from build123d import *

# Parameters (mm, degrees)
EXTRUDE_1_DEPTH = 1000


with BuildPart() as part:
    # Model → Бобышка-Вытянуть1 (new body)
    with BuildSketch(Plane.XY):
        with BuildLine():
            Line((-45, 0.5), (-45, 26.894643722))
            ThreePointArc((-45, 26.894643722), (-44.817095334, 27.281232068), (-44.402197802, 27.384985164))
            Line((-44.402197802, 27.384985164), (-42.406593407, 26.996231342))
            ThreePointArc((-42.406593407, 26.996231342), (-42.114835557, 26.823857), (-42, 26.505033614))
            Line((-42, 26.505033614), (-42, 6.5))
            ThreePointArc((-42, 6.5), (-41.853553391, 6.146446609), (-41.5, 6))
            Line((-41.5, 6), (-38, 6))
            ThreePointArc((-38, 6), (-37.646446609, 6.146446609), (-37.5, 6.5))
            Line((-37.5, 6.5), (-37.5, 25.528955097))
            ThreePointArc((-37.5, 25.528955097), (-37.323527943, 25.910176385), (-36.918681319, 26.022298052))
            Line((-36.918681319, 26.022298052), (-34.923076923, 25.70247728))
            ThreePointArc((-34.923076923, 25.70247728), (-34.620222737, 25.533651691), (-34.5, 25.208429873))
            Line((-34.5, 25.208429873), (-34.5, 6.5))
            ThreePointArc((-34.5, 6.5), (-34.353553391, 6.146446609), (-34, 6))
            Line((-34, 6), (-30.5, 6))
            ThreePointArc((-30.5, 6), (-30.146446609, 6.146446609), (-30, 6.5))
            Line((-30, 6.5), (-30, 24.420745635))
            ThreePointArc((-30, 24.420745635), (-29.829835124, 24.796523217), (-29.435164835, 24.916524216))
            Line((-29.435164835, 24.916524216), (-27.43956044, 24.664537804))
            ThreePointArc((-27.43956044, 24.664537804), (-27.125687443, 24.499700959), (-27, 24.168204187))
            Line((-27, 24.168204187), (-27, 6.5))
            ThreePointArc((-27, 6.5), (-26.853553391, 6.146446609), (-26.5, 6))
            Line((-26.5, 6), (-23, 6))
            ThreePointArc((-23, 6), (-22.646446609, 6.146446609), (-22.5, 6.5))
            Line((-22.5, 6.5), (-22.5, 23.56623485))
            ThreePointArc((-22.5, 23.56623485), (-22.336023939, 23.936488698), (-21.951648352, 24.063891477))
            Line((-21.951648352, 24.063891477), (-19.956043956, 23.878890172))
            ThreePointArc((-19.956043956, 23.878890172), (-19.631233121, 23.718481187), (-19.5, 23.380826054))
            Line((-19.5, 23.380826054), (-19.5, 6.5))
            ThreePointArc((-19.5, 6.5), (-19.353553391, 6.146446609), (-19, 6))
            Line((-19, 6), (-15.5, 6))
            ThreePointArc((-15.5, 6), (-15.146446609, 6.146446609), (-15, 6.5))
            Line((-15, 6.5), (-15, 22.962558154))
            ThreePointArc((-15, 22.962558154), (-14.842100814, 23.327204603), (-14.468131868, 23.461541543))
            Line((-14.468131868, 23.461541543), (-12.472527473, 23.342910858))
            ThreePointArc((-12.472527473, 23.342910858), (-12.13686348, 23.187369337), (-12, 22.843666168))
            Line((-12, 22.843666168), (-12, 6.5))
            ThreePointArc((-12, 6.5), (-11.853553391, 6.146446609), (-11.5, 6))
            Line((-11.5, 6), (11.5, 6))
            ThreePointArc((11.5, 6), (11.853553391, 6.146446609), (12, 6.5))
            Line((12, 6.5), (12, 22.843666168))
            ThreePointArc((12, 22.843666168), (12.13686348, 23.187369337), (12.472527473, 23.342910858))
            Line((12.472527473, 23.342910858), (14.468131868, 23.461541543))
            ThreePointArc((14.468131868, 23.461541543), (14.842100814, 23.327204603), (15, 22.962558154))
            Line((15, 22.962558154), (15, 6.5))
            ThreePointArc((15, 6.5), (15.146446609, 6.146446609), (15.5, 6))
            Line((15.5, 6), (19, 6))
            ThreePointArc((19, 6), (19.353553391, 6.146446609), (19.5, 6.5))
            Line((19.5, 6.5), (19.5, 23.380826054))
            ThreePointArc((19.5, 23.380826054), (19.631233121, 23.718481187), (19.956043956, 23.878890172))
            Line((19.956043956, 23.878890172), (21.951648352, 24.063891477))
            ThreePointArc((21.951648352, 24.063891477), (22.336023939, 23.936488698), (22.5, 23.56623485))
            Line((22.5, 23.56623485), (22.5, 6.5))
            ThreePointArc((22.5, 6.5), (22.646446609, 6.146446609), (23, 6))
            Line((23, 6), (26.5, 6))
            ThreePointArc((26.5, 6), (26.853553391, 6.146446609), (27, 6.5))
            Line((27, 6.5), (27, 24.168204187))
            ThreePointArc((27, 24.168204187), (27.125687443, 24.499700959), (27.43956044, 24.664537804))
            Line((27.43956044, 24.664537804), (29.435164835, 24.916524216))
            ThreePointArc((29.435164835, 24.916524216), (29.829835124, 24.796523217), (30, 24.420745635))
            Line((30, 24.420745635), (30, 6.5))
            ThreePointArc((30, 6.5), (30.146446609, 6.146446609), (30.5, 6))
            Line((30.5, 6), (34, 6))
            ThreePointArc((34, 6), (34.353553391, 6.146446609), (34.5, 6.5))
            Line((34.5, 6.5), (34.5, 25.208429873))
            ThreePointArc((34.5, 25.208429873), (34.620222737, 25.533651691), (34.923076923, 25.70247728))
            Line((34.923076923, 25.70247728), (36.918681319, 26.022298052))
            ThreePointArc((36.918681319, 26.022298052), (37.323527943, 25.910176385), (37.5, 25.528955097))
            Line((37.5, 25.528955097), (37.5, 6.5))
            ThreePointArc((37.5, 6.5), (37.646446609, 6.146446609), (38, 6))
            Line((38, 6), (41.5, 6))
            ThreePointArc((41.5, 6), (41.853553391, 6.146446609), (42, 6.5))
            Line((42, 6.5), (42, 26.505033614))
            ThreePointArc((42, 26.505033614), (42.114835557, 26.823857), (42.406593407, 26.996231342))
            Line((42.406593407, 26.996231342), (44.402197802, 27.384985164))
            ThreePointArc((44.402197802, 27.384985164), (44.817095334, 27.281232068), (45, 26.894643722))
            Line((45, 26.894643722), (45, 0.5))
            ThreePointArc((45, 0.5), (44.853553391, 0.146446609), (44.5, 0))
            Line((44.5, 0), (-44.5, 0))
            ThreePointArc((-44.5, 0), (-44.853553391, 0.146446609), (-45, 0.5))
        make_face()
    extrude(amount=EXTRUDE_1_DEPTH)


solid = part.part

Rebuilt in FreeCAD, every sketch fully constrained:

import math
import FreeCAD as App
import Part
import Sketcher

V = App.Vector
Q = App.Units.Quantity

doc = App.newDocument("Part")
body = doc.addObject("PartDesign::Body", "Body")

# Sketch on XY plane
sketch1 = doc.addObject("Sketcher::SketchObject", "Sketch")
body.addObject(sketch1)
sketch1.AttachmentSupport = (doc.XY_Plane, [""])
sketch1.MapMode = "FlatFace"
sketch1.addGeometry([
    Part.LineSegment(V(-45, 26.89, 0), V(-45, 0.5, 0)),  # 0
    Part.ArcOfCircle(Part.Circle(V(-44.5, 0.5, 0), V(0, 0, 1), 0.5), math.radians(180), math.radians(270)),  # 1
    Part.LineSegment(V(-44.5, 0, 0), V(44.5, 0, 0)),  # 2
    Part.ArcOfCircle(Part.Circle(V(44.5, 0.5, 0), V(0, 0, 1), 0.5), math.radians(-90), math.radians(0)),  # 3
    Part.LineSegment(V(45, 0.5, 0), V(45, 26.89, 0)),  # 4
    Part.ArcOfCircle(Part.Circle(V(44.5, 26.89, 0), V(0, 0, 1), 0.5), math.radians(0), math.radians(101)),  # 5
    Part.LineSegment(V(44.4, 27.38, 0), V(42.41, 27, 0)),  # 6
    Part.ArcOfCircle(Part.Circle(V(42.5, 26.51, 0), V(0, 0, 1), 0.5), math.radians(101), math.radians(180)),  # 7
    Part.LineSegment(V(42, 26.51, 0), V(42, 6.5, 0)),  # 8
    Part.ArcOfCircle(Part.Circle(V(41.5, 6.5, 0), V(0, 0, 1), 0.5), math.radians(-90), math.radians(0)),  # 9
    Part.LineSegment(V(41.5, 6, 0), V(38, 6, 0)),  # 10
    Part.ArcOfCircle(Part.Circle(V(38, 6.5, 0), V(0, 0, 1), 0.5), math.radians(180), math.radians(270)),  # 11
    Part.LineSegment(V(37.5, 6.5, 0), V(37.5, 25.53, 0)),  # 12
    Part.ArcOfCircle(Part.Circle(V(37, 25.53, 0), V(0, 0, 1), 0.5), math.radians(0), math.radians(99)),  # 13
    Part.LineSegment(V(36.92, 26.02, 0), V(34.92, 25.7, 0)),  # 14
    Part.ArcOfCircle(Part.Circle(V(35, 25.21, 0), V(0, 0, 1), 0.5), math.radians(99), math.radians(180)),  # 15
    Part.LineSegment(V(34.5, 25.21, 0), V(34.5, 6.5, 0)),  # 16
    Part.ArcOfCircle(Part.Circle(V(34, 6.5, 0), V(0, 0, 1), 0.5), math.radians(-90), math.radians(0)),  # 17
    Part.LineSegment(V(34, 6, 0), V(30.5, 6, 0)),  # 18
    Part.ArcOfCircle(Part.Circle(V(30.5, 6.5, 0), V(0, 0, 1), 0.5), math.radians(180), math.radians(270)),  # 19
    Part.LineSegment(V(30, 6.5, 0), V(30, 24.42, 0)),  # 20
    Part.ArcOfCircle(Part.Circle(V(29.5, 24.42, 0), V(0, 0, 1), 0.5), math.radians(0), math.radians(97)),  # 21
    Part.LineSegment(V(29.44, 24.92, 0), V(27.44, 24.66, 0)),  # 22
    Part.ArcOfCircle(Part.Circle(V(27.5, 24.17, 0), V(0, 0, 1), 0.5), math.radians(97), math.radians(180)),  # 23
    Part.LineSegment(V(27, 24.17, 0), V(27, 6.5, 0)),  # 24
    Part.ArcOfCircle(Part.Circle(V(26.5, 6.5, 0), V(0, 0, 1), 0.5), math.radians(-90), math.radians(0)),  # 25
    Part.LineSegment(V(26.5, 6, 0), V(23, 6, 0)),  # 26
    Part.ArcOfCircle(Part.Circle(V(23, 6.5, 0), V(0, 0, 1), 0.5), math.radians(180), math.radians(270)),  # 27
    Part.LineSegment(V(22.5, 6.5, 0), V(22.5, 23.57, 0)),  # 28
    Part.ArcOfCircle(Part.Circle(V(22, 23.57, 0), V(0, 0, 1), 0.5), math.radians(0), math.radians(96)),  # 29
    Part.LineSegment(V(21.95, 24.06, 0), V(19.96, 23.88, 0)),  # 30
    Part.ArcOfCircle(Part.Circle(V(20, 23.38, 0), V(0, 0, 1), 0.5), math.radians(95), math.radians(180)),  # 31
    Part.LineSegment(V(19.5, 23.38, 0), V(19.5, 6.5, 0)),  # 32
    Part.ArcOfCircle(Part.Circle(V(19, 6.5, 0), V(0, 0, 1), 0.5), math.radians(-90), math.radians(0)),  # 33
    Part.LineSegment(V(19, 6, 0), V(15.5, 6, 0)),  # 34
    Part.ArcOfCircle(Part.Circle(V(15.5, 6.5, 0), V(0, 0, 1), 0.5), math.radians(180), math.radians(270)),  # 35
    Part.LineSegment(V(15, 6.5, 0), V(15, 22.96, 0)),  # 36
    Part.ArcOfCircle(Part.Circle(V(14.5, 22.96, 0), V(0, 0, 1), 0.5), math.radians(0), math.radians(94)),  # 37
    Part.LineSegment(V(14.47, 23.46, 0), V(12.47, 23.34, 0)),  # 38
    Part.ArcOfCircle(Part.Circle(V(12.5, 22.84, 0), V(0, 0, 1), 0.5), math.radians(93), math.radians(180)),  # 39
    Part.LineSegment(V(12, 22.84, 0), V(12, 6.5, 0)),  # 40
    Part.ArcOfCircle(Part.Circle(V(11.5, 6.5, 0), V(0, 0, 1), 0.5), math.radians(-90), math.radians(0)),  # 41
    Part.LineSegment(V(11.5, 6, 0), V(-11.5, 6, 0)),  # 42
    Part.ArcOfCircle(Part.Circle(V(-11.5, 6.5, 0), V(0, 0, 1), 0.5), math.radians(180), math.radians(270)),  # 43
    Part.LineSegment(V(-12, 6.5, 0), V(-12, 22.84, 0)),  # 44
    Part.ArcOfCircle(Part.Circle(V(-12.5, 22.84, 0), V(0, 0, 1), 0.5), math.radians(0), math.radians(87)),  # 45
    Part.LineSegment(V(-12.47, 23.34, 0), V(-14.47, 23.46, 0)),  # 46
    Part.ArcOfCircle(Part.Circle(V(-14.5, 22.96, 0), V(0, 0, 1), 0.5), math.radians(86), math.radians(180)),  # 47
    Part.LineSegment(V(-15, 22.96, 0), V(-15, 6.5, 0)),  # 48
    Part.ArcOfCircle(Part.Circle(V(-15.5, 6.5, 0), V(0, 0, 1), 0.5), math.radians(-90), math.radians(0)),  # 49
    Part.LineSegment(V(-15.5, 6, 0), V(-19, 6, 0)),  # 50
    Part.ArcOfCircle(Part.Circle(V(-19, 6.5, 0), V(0, 0, 1), 0.5), math.radians(180), math.radians(270)),  # 51
    Part.LineSegment(V(-19.5, 6.5, 0), V(-19.5, 23.38, 0)),  # 52
    Part.ArcOfCircle(Part.Circle(V(-20, 23.38, 0), V(0, 0, 1), 0.5), math.radians(0), math.radians(85)),  # 53
    Part.LineSegment(V(-19.96, 23.88, 0), V(-21.95, 24.06, 0)),  # 54
    Part.ArcOfCircle(Part.Circle(V(-22, 23.57, 0), V(0, 0, 1), 0.5), math.radians(84), math.radians(180)),  # 55
    Part.LineSegment(V(-22.5, 23.57, 0), V(-22.5, 6.5, 0)),  # 56
    Part.ArcOfCircle(Part.Circle(V(-23, 6.5, 0), V(0, 0, 1), 0.5), math.radians(-90), math.radians(0)),  # 57
    Part.LineSegment(V(-23, 6, 0), V(-26.5, 6, 0)),  # 58
    Part.ArcOfCircle(Part.Circle(V(-26.5, 6.5, 0), V(0, 0, 1), 0.5), math.radians(180), math.radians(270)),  # 59
    Part.LineSegment(V(-27, 6.5, 0), V(-27, 24.17, 0)),  # 60
    Part.ArcOfCircle(Part.Circle(V(-27.5, 24.17, 0), V(0, 0, 1), 0.5), math.radians(0), math.radians(83)),  # 61
    Part.LineSegment(V(-27.44, 24.66, 0), V(-29.44, 24.92, 0)),  # 62
    Part.ArcOfCircle(Part.Circle(V(-29.5, 24.42, 0), V(0, 0, 1), 0.5), math.radians(83), math.radians(180)),  # 63
    Part.LineSegment(V(-30, 24.42, 0), V(-30, 6.5, 0)),  # 64
    Part.ArcOfCircle(Part.Circle(V(-30.5, 6.5, 0), V(0, 0, 1), 0.5), math.radians(-90), math.radians(0)),  # 65
    Part.LineSegment(V(-30.5, 6, 0), V(-34, 6, 0)),  # 66
    Part.ArcOfCircle(Part.Circle(V(-34, 6.5, 0), V(0, 0, 1), 0.5), math.radians(180), math.radians(270)),  # 67
    Part.LineSegment(V(-34.5, 6.5, 0), V(-34.5, 25.21, 0)),  # 68
    Part.ArcOfCircle(Part.Circle(V(-35, 25.21, 0), V(0, 0, 1), 0.5), math.radians(0), math.radians(81)),  # 69
    Part.LineSegment(V(-34.92, 25.7, 0), V(-36.92, 26.02, 0)),  # 70
    Part.ArcOfCircle(Part.Circle(V(-37, 25.53, 0), V(0, 0, 1), 0.5), math.radians(81), math.radians(180)),  # 71
    Part.LineSegment(V(-37.5, 25.53, 0), V(-37.5, 6.5, 0)),  # 72
    Part.ArcOfCircle(Part.Circle(V(-38, 6.5, 0), V(0, 0, 1), 0.5), math.radians(-90), math.radians(0)),  # 73
    Part.LineSegment(V(-38, 6, 0), V(-41.5, 6, 0)),  # 74
    Part.ArcOfCircle(Part.Circle(V(-41.5, 6.5, 0), V(0, 0, 1), 0.5), math.radians(180), math.radians(270)),  # 75
    Part.LineSegment(V(-42, 6.5, 0), V(-42, 26.51, 0)),  # 76
    Part.ArcOfCircle(Part.Circle(V(-42.5, 26.51, 0), V(0, 0, 1), 0.5), math.radians(0), math.radians(79)),  # 77
    Part.LineSegment(V(-42.41, 27, 0), V(-44.4, 27.38, 0)),  # 78
    Part.ArcOfCircle(Part.Circle(V(-44.5, 26.89, 0), V(0, 0, 1), 0.5), math.radians(79), math.radians(180)),  # 79
], False)
sketch1.addConstraint([
    Sketcher.Constraint("Tangent", 0, 2, 1, 1),
    Sketcher.Constraint("Tangent", 1, 2, 2, 1),
    Sketcher.Constraint("Tangent", 2, 2, 3, 1),
    Sketcher.Constraint("Tangent", 3, 2, 4, 1),
    Sketcher.Constraint("Tangent", 4, 2, 5, 1),
    Sketcher.Constraint("Coincident", 5, 2, 6, 1),
    Sketcher.Constraint("Coincident", 6, 2, 7, 1),
    Sketcher.Constraint("Tangent", 7, 2, 8, 1),
    Sketcher.Constraint("Tangent", 8, 2, 9, 2),
    Sketcher.Constraint("Tangent", 9, 1, 10, 1),
    Sketcher.Constraint("Tangent", 10, 2, 11, 2),
    Sketcher.Constraint("Tangent", 11, 1, 12, 1),
    Sketcher.Constraint("Tangent", 12, 2, 13, 1),
    Sketcher.Constraint("Coincident", 13, 2, 14, 1),
    Sketcher.Constraint("Coincident", 14, 2, 15, 1),
    Sketcher.Constraint("Tangent", 15, 2, 16, 1),
    Sketcher.Constraint("Tangent", 16, 2, 17, 2),
    Sketcher.Constraint("Tangent", 17, 1, 18, 1),
    Sketcher.Constraint("Tangent", 18, 2, 19, 2),
    Sketcher.Constraint("Tangent", 19, 1, 20, 1),
    Sketcher.Constraint("Tangent", 20, 2, 21, 1),
    Sketcher.Constraint("Coincident", 21, 2, 22, 1),
    Sketcher.Constraint("Coincident", 22, 2, 23, 1),
    Sketcher.Constraint("Tangent", 23, 2, 24, 1),
    Sketcher.Constraint("Tangent", 24, 2, 25, 2),
    Sketcher.Constraint("Tangent", 25, 1, 26, 1),
    Sketcher.Constraint("Tangent", 26, 2, 27, 2),
    Sketcher.Constraint("Tangent", 27, 1, 28, 1),
    Sketcher.Constraint("Tangent", 28, 2, 29, 1),
    Sketcher.Constraint("Coincident", 29, 2, 30, 1),
    Sketcher.Constraint("Coincident", 30, 2, 31, 1),
    Sketcher.Constraint("Tangent", 31, 2, 32, 1),
    Sketcher.Constraint("Tangent", 32, 2, 33, 2),
    Sketcher.Constraint("Tangent", 33, 1, 34, 1),
    Sketcher.Constraint("Tangent", 34, 2, 35, 2),
    Sketcher.Constraint("Tangent", 35, 1, 36, 1),
    Sketcher.Constraint("Tangent", 36, 2, 37, 1),
    Sketcher.Constraint("Coincident", 37, 2, 38, 1),
    Sketcher.Constraint("Coincident", 38, 2, 39, 1),
    Sketcher.Constraint("Tangent", 39, 2, 40, 1),
    Sketcher.Constraint("Tangent", 40, 2, 41, 2),
    Sketcher.Constraint("Tangent", 41, 1, 42, 1),
    Sketcher.Constraint("Tangent", 42, 2, 43, 2),
    Sketcher.Constraint("Tangent", 43, 1, 44, 1),
    Sketcher.Constraint("Tangent", 44, 2, 45, 1),
    Sketcher.Constraint("Coincident", 45, 2, 46, 1),
    Sketcher.Constraint("Coincident", 46, 2, 47, 1),
    Sketcher.Constraint("Tangent", 47, 2, 48, 1),
    Sketcher.Constraint("Tangent", 48, 2, 49, 2),
    Sketcher.Constraint("Tangent", 49, 1, 50, 1),
    Sketcher.Constraint("Tangent", 50, 2, 51, 2),
    Sketcher.Constraint("Tangent", 51, 1, 52, 1),
    Sketcher.Constraint("Tangent", 52, 2, 53, 1),
    Sketcher.Constraint("Coincident", 53, 2, 54, 1),
    Sketcher.Constraint("Coincident", 54, 2, 55, 1),
    Sketcher.Constraint("Tangent", 55, 2, 56, 1),
    Sketcher.Constraint("Tangent", 56, 2, 57, 2),
    Sketcher.Constraint("Tangent", 57, 1, 58, 1),
    Sketcher.Constraint("Tangent", 58, 2, 59, 2),
    Sketcher.Constraint("Tangent", 59, 1, 60, 1),
    Sketcher.Constraint("Tangent", 60, 2, 61, 1),
    Sketcher.Constraint("Coincident", 61, 2, 62, 1),
    Sketcher.Constraint("Coincident", 62, 2, 63, 1),
    Sketcher.Constraint("Tangent", 63, 2, 64, 1),
    Sketcher.Constraint("Tangent", 64, 2, 65, 2),
    Sketcher.Constraint("Tangent", 65, 1, 66, 1),
    Sketcher.Constraint("Tangent", 66, 2, 67, 2),
    Sketcher.Constraint("Tangent", 67, 1, 68, 1),
    Sketcher.Constraint("Tangent", 68, 2, 69, 1),
    Sketcher.Constraint("Coincident", 69, 2, 70, 1),
    Sketcher.Constraint("Coincident", 70, 2, 71, 1),
    Sketcher.Constraint("Tangent", 71, 2, 72, 1),
    Sketcher.Constraint("Tangent", 72, 2, 73, 2),
    Sketcher.Constraint("Tangent", 73, 1, 74, 1),
    Sketcher.Constraint("Tangent", 74, 2, 75, 2),
    Sketcher.Constraint("Tangent", 75, 1, 76, 1),
    Sketcher.Constraint("Tangent", 76, 2, 77, 1),
    Sketcher.Constraint("Coincident", 77, 2, 78, 1),
    Sketcher.Constraint("Coincident", 78, 2, 79, 1),
    Sketcher.Constraint("Tangent", 79, 2, 0, 1),
    Sketcher.Constraint("Vertical", 0),
    Sketcher.Constraint("Horizontal", 2),
    Sketcher.Constraint("Vertical", 4),
    Sketcher.Constraint("Vertical", 8),
    Sketcher.Constraint("Horizontal", 10),
    Sketcher.Constraint("Vertical", 12),
    Sketcher.Constraint("Vertical", 16),
    Sketcher.Constraint("Horizontal", 18),
    Sketcher.Constraint("Vertical", 20),
    Sketcher.Constraint("Vertical", 24),
    Sketcher.Constraint("Horizontal", 26),
    Sketcher.Constraint("Vertical", 28),
    Sketcher.Constraint("Vertical", 32),
    Sketcher.Constraint("Horizontal", 34),
    Sketcher.Constraint("Vertical", 36),
    Sketcher.Constraint("Vertical", 40),
    Sketcher.Constraint("Horizontal", 42),
    Sketcher.Constraint("Vertical", 44),
    Sketcher.Constraint("Vertical", 48),
    Sketcher.Constraint("Horizontal", 50),
    Sketcher.Constraint("Vertical", 52),
    Sketcher.Constraint("Vertical", 56),
    Sketcher.Constraint("Horizontal", 58),
    Sketcher.Constraint("Vertical", 60),
    Sketcher.Constraint("Vertical", 64),
    Sketcher.Constraint("Horizontal", 66),
    Sketcher.Constraint("Vertical", 68),
    Sketcher.Constraint("Vertical", 72),
    Sketcher.Constraint("Horizontal", 74),
    Sketcher.Constraint("Vertical", 76),
    Sketcher.Constraint("Equal", 1, 3),
    Sketcher.Constraint("Equal", 3, 5),
    Sketcher.Constraint("Equal", 5, 7),
    Sketcher.Constraint("Equal", 7, 9),
    Sketcher.Constraint("Equal", 9, 11),
    Sketcher.Constraint("Equal", 11, 13),
    Sketcher.Constraint("Equal", 13, 15),
    Sketcher.Constraint("Equal", 15, 17),
    Sketcher.Constraint("Equal", 17, 19),
    Sketcher.Constraint("Equal", 19, 21),
    Sketcher.Constraint("Equal", 21, 23),
    Sketcher.Constraint("Equal", 23, 25),
    Sketcher.Constraint("Equal", 25, 27),
    Sketcher.Constraint("Equal", 27, 29),
    Sketcher.Constraint("Equal", 29, 31),
    Sketcher.Constraint("Equal", 31, 33),
    Sketcher.Constraint("Equal", 33, 35),
    Sketcher.Constraint("Equal", 35, 37),
    Sketcher.Constraint("Equal", 37, 39),
    Sketcher.Constraint("Equal", 39, 41),
    Sketcher.Constraint("Equal", 41, 43),
    Sketcher.Constraint("Equal", 43, 45),
    Sketcher.Constraint("Equal", 45, 47),
    Sketcher.Constraint("Equal", 47, 49),
    Sketcher.Constraint("Equal", 49, 51),
    Sketcher.Constraint("Equal", 51, 53),
    Sketcher.Constraint("Equal", 53, 55),
    Sketcher.Constraint("Equal", 55, 57),
    Sketcher.Constraint("Equal", 57, 59),
    Sketcher.Constraint("Equal", 59, 61),
    Sketcher.Constraint("Equal", 61, 63),
    Sketcher.Constraint("Equal", 63, 65),
    Sketcher.Constraint("Equal", 65, 67),
    Sketcher.Constraint("Equal", 67, 69),
    Sketcher.Constraint("Equal", 69, 71),
    Sketcher.Constraint("Equal", 71, 73),
    Sketcher.Constraint("Equal", 73, 75),
    Sketcher.Constraint("Equal", 75, 77),
    Sketcher.Constraint("Equal", 77, 79),
    Sketcher.Constraint("Symmetric", 1, 2, 2, 2, -1, 1),
    Sketcher.Constraint("Symmetric", 39, 3, 45, 3, -2),
    Sketcher.Constraint("Symmetric", 37, 3, 47, 3, -2),
    Sketcher.Constraint("Symmetric", 33, 3, 51, 3, -2),
    Sketcher.Constraint("Symmetric", 29, 3, 55, 3, -2),
    Sketcher.Constraint("Symmetric", 25, 3, 59, 3, -2),
    Sketcher.Constraint("Symmetric", 21, 3, 63, 3, -2),
    Sketcher.Constraint("Symmetric", 17, 3, 67, 3, -2),
    Sketcher.Constraint("Symmetric", 13, 3, 71, 3, -2),
    Sketcher.Constraint("Symmetric", 9, 3, 75, 3, -2),
    Sketcher.Constraint("Symmetric", 30, 2, 53, 2, -2),
    Sketcher.Constraint("Symmetric", 22, 2, 61, 2, -2),
    Sketcher.Constraint("Symmetric", 14, 2, 69, 2, -2),
    Sketcher.Constraint("Symmetric", 6, 2, 77, 2, -2),
    Sketcher.Constraint("Symmetric", 5, 2, 78, 2, -2),
    Sketcher.Constraint("Horizontal", 11, 3, 17, 3),
    Sketcher.Constraint("Horizontal", 19, 3, 25, 3),
    Sketcher.Constraint("Horizontal", 27, 3, 33, 3),
    Sketcher.Constraint("Horizontal", 35, 3, 41, 3),
    Sketcher.Constraint("Horizontal", 38, 2, 45, 2),
    Sketcher.Constraint("Horizontal", 37, 2, 46, 2),
    Sketcher.Constraint("Horizontal", 29, 2, 54, 2),
    Sketcher.Constraint("Horizontal", 21, 2, 62, 2),
    Sketcher.Constraint("Horizontal", 13, 2, 70, 2),
    Sketcher.Constraint("Equal", 10, 18),
    Sketcher.Constraint("Equal", 18, 26),
    Sketcher.Constraint("Equal", 26, 34),
    Sketcher.Constraint("Radius", 1, Q("0.5 mm")),
    Sketcher.Constraint("DistanceX", 2, 1, 2, 2, Q("89 mm")),
    Sketcher.Constraint("DistanceX", 42, 2, 42, 1, Q("23 mm")),
    Sketcher.Constraint("DistanceX", 10, 2, 10, 1, Q("3.5 mm")),
    Sketcher.Constraint("DistanceX", -1, 1, 11, 3, Q("38 mm")),
    Sketcher.Constraint("DistanceX", -1, 1, 15, 3, Q("35 mm")),
    Sketcher.Constraint("DistanceX", -1, 1, 27, 3, Q("23 mm")),
    Sketcher.Constraint("DistanceX", -1, 1, 31, 3, Q("20 mm")),
    Sketcher.Constraint("DistanceY", -1, 1, 9, 1, Q("6 mm")),
    Sketcher.Constraint("DistanceY", 16, 2, 16, 1, Q("18.70843 mm")),
    Sketcher.Constraint("DistanceY", 36, 1, 36, 2, Q("16.462558 mm")),
    Sketcher.Constraint("DistanceY", -1, 1, 13, 2, Q("26.022298 mm")),
    Sketcher.Constraint("Distance", 14, Q("2.02107 mm")),
    Sketcher.Constraint("Distance", 22, Q("2.011451 mm")),
    Sketcher.Constraint("Distance", 30, Q("2.004161 mm")),
    Sketcher.Constraint("DistanceY", 0, 2, 0, 1, Q("26.394644 mm")),
    Sketcher.Constraint("DistanceY", 8, 2, 8, 1, Q("20.005034 mm")),
    Sketcher.Constraint("DistanceY", 12, 1, 12, 2, Q("19.028955 mm")),
    Sketcher.Constraint("DistanceY", 20, 1, 20, 2, Q("17.920746 mm")),
    Sketcher.Constraint("DistanceY", 24, 2, 24, 1, Q("17.668204 mm")),
    Sketcher.Constraint("DistanceY", 28, 1, 28, 2, Q("17.066235 mm")),
    Sketcher.Constraint("DistanceY", 32, 2, 32, 1, Q("16.880826 mm")),
    Sketcher.Constraint("DistanceY", 40, 2, 40, 1, Q("16.343666 mm")),
    Sketcher.Constraint("DistanceY", -1, 1, 6, 2, Q("26.996231 mm")),
    Sketcher.Constraint("DistanceX", -1, 1, 22, 2, Q("27.43956 mm")),
    Sketcher.Constraint("DistanceX", -1, 1, 29, 2, Q("21.951648 mm")),
    Sketcher.Constraint("DistanceX", -1, 1, 37, 2, Q("14.468132 mm")),
    Sketcher.Constraint("DistanceY", -1, 1, 38, 2, Q("23.342911 mm")),
    Sketcher.Constraint("Distance", 6, Q("2.033117 mm")),
])
pad1 = doc.addObject("PartDesign::Pad", "Pad")
body.addObject(pad1)
pad1.Profile = sketch1
pad1.Length = 1000

doc.recompute()
